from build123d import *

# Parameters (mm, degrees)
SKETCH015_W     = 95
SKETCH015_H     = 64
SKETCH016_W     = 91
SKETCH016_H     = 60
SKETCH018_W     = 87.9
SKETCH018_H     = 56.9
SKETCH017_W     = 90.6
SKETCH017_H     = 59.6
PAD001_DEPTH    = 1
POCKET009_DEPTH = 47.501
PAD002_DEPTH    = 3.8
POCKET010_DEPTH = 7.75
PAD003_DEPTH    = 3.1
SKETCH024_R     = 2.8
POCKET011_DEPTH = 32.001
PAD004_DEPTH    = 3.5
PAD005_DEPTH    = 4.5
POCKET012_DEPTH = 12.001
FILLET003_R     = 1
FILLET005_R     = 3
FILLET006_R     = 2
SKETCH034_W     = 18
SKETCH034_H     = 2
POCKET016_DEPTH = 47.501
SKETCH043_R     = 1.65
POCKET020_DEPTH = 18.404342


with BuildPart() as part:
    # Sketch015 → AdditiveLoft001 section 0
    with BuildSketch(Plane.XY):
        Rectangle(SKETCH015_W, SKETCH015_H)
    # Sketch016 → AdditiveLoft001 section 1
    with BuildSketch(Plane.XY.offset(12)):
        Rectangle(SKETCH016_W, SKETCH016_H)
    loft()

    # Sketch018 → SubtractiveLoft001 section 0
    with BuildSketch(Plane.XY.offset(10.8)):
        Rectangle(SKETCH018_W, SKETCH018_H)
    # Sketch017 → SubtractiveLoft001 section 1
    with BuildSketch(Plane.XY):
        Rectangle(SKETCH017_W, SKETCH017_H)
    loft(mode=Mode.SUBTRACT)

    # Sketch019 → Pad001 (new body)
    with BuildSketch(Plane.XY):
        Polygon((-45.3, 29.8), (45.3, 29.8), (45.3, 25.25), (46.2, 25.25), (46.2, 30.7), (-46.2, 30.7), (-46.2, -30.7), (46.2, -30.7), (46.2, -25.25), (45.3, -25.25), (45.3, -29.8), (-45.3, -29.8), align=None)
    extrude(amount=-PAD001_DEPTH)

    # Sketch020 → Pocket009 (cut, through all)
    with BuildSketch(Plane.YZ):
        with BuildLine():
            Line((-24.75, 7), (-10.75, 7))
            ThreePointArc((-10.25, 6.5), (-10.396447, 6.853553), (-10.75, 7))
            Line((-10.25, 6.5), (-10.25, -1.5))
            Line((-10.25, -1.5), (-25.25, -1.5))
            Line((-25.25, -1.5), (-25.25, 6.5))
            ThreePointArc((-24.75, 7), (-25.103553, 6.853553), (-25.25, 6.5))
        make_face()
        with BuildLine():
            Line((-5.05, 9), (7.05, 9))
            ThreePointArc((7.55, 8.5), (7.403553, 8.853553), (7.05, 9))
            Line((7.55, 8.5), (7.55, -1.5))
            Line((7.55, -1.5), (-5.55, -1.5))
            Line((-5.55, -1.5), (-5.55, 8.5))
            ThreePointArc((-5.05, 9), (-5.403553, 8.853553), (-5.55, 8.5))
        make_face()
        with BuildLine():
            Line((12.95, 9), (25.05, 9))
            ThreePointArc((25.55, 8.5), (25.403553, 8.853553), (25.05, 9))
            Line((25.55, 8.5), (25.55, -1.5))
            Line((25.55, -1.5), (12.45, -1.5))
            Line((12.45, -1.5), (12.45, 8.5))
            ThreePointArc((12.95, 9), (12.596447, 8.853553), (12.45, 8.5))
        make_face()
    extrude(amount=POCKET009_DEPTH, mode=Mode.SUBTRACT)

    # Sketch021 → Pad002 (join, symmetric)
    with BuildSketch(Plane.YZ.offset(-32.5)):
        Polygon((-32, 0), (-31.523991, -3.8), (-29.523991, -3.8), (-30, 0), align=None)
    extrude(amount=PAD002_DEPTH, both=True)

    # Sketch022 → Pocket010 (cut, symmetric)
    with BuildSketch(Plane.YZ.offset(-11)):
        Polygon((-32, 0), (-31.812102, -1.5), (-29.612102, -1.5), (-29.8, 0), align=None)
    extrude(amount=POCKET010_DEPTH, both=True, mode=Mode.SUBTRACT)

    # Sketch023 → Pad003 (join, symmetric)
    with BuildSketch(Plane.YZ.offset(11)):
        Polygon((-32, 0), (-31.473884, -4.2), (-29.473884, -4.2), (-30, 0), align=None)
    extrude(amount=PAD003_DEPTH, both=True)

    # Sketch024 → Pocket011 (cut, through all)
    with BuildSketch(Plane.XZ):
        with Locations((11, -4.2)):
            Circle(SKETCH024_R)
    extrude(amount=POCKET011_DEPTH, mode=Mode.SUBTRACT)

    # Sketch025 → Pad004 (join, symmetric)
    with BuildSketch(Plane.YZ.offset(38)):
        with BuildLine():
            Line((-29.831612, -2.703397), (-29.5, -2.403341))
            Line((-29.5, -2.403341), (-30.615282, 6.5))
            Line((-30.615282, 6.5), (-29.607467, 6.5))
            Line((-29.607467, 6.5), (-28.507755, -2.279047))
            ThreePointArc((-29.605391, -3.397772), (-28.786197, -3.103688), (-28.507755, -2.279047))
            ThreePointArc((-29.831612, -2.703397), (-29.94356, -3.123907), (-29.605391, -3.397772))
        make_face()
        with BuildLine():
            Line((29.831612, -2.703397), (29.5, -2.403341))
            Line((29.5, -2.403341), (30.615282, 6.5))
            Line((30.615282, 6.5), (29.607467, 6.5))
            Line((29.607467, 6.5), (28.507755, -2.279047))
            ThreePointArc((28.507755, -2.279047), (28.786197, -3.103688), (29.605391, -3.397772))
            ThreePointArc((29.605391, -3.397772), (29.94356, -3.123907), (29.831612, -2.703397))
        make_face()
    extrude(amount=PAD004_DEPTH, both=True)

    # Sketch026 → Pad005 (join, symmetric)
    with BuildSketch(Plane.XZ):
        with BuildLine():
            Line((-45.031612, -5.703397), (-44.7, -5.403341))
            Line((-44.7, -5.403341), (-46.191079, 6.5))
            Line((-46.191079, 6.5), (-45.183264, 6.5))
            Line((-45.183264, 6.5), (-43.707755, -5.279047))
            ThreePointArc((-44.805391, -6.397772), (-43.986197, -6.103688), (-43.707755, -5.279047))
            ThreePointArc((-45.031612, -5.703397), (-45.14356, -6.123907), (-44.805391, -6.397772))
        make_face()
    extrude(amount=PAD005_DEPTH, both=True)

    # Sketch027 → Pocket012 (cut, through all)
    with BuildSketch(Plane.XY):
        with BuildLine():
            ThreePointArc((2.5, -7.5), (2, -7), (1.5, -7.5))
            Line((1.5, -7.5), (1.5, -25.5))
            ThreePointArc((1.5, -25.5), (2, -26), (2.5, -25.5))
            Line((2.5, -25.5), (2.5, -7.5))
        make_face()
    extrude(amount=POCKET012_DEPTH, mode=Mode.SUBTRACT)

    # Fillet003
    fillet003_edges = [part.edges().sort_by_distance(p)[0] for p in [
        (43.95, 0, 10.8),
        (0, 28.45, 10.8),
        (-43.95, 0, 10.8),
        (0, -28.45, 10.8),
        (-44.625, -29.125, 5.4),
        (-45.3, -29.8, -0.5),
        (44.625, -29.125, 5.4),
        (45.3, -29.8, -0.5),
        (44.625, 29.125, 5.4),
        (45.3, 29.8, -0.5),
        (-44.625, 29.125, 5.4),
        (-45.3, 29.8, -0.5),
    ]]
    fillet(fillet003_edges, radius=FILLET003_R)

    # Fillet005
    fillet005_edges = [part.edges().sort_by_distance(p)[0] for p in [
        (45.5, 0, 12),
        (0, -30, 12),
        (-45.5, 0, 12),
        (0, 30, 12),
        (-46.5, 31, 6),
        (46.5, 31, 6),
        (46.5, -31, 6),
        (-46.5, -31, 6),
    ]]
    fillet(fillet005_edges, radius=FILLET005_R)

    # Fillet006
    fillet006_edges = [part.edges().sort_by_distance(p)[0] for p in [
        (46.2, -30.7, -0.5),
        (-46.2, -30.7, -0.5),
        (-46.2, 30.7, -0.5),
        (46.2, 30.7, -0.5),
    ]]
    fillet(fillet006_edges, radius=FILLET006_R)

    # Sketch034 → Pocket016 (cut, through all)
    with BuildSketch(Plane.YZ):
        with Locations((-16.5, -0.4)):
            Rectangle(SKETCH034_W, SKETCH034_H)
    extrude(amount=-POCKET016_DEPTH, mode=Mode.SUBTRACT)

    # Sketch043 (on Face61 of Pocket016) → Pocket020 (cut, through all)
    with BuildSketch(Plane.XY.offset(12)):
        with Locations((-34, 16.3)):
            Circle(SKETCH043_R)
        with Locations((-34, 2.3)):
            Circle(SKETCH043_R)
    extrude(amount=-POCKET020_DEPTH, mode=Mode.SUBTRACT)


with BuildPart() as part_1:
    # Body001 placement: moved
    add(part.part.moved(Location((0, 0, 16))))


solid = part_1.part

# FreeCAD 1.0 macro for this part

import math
import FreeCAD as App
import Part
import Sketcher
from FreeCAD import Vector
Q = App.Units.Quantity


def edges_at(feature, points):
    """Names of the edges that pass closest to the given points."""
    edges = feature.Shape.Edges
    near = lambda p: min(range(len(edges)), key=lambda i: edges[i].distToShape(Part.Vertex(*p))[0])
    return sorted({f"Edge{near(p) + 1}" for p in points})


def add_polygon(sketch, points):
    """Adds a closed chain of lines whose ends are joined by coincident constraints."""
    first, n = sketch.GeometryCount, len(points)
    for a, b in zip(points, points[1:] + points[:1]):
        sketch.addGeometry(Part.LineSegment(App.Vector(*a, 0), App.Vector(*b, 0)), False)
    for i in range(n):
        sketch.addConstraint(Sketcher.Constraint("Coincident", first + i, 2, first + (i + 1) % n, 1))

doc = App.newDocument("Part")
params = doc.addObject("Spreadsheet::Sheet", "Params")
for row, (alias, value) in enumerate([
    ("sketch1_width", "95 mm"),
    ("sketch1_height", "64 mm"),
    ("sketch2_width", "91 mm"),
    ("sketch2_height", "60 mm"),
    ("sketch3_width", "87.9 mm"),
    ("sketch3_height", "56.9 mm"),
    ("sketch4_width", "90.6 mm"),
    ("sketch4_height", "59.6 mm"),
    ("sketch5_width", "90.6 mm"),
    ("sketch5_width2", "0.9 mm"),
    ("sketch5_height", "61.4 mm"),
    ("sketch5_height2", "59.6 mm"),
    ("sketch5_height3", "4.55 mm"),
    ("pad1_length", "1 mm"),
    ("sketch6_radius", "0.500001 mm"),
    ("sketch6_width", "14 mm"),
    ("sketch6_width2", "15 mm"),
    ("sketch6_height", "8 mm"),
    ("sketch6_height2", "10 mm"),
    ("sketch7_width", "2 mm"),
    ("pad2_length", "7.6 mm"),
    ("sketch8_width", "2.2 mm"),
    ("pocket2_length", "15.5 mm"),
    ("sketch9_width", "2 mm"),
    ("pad3_length", "6.2 mm"),
    ("sketch10_diameter", "5.6 mm"),
    ("sketch11_radius", "0.999999 mm"),
    ("sketch11_radius2", "0.399999 mm"),
    ("pad4_length", "7 mm"),
    ("sketch12_radius", "0.999999 mm"),
    ("sketch12_radius2", "0.399999 mm"),
    ("pad5_length", "9 mm"),
    ("sketch13_radius", "0.5 mm"),
    ("sketch13_height", "18 mm"),
    ("fillet_radius", "1 mm"),
    ("fillet2_radius", "3 mm"),
    ("fillet3_radius", "2 mm"),
    ("sketch14_width", "18 mm"),
    ("sketch14_height", "2 mm"),
    ("sketch15_diameter", "3.3 mm"),
], start=1):
    params.set(f"A{row}", alias)
    params.set(f"B{row}", "=" + value)
    params.setAlias(f"B{row}", alias)

body = doc.addObject("PartDesign::Body", "Body")

sketch1 = body.newObject("Sketcher::SketchObject", "Sketch")
sketch1.AttachmentSupport = (doc.getObject("XY_Plane"), [""])
sketch1.MapMode = "FlatFace"
add_polygon(sketch1, [(-48, 32), (-48, -32), (48, -32), (48, 32)])
sketch1.addConstraint([
    Sketcher.Constraint("Vertical", 0),
    Sketcher.Constraint("Horizontal", 1),
    Sketcher.Constraint("Vertical", 2),
    Sketcher.Constraint("Horizontal", 3),
    Sketcher.Constraint("Symmetric", 0, 2, 2, 2, -1, 1),
    Sketcher.Constraint("DistanceX", 1, 1, 1, 2, 95.0),
    Sketcher.Constraint("DistanceY", 0, 2, 0, 1, 64.0),
])
sketch1.setExpression("Constraints[9]", "Params.sketch1_width")
sketch1.setExpression("Constraints[10]", "Params.sketch1_height")

sketch2 = body.newObject("Sketcher::SketchObject", "Sketch001")
sketch2.AttachmentSupport = (doc.getObject("XY_Plane"), [""])
sketch2.MapMode = "FlatFace"
sketch2.AttachmentOffset = App.Placement(Vector(0, 0, 12), App.Rotation())
add_polygon(sketch2, [(-46, 30), (-46, -30), (46, -30), (46, 30)])
sketch2.addConstraint([
    Sketcher.Constraint("Vertical", 0),
    Sketcher.Constraint("Horizontal", 1),
    Sketcher.Constraint("Vertical", 2),
    Sketcher.Constraint("Horizontal", 3),
    Sketcher.Constraint("Symmetric", 0, 2, 2, 2, -1, 1),
    Sketcher.Constraint("DistanceX", 1, 1, 1, 2, 91.0),
    Sketcher.Constraint("DistanceY", 0, 2, 0, 1, 60.0),
])
sketch2.setExpression("Constraints[9]", "Params.sketch2_width")
sketch2.setExpression("Constraints[10]", "Params.sketch2_height")

additiveloft = body.newObject("PartDesign::AdditiveLoft", "AdditiveLoft")
additiveloft.Profile = sketch1
additiveloft.Sections = [sketch2]

sketch3 = body.newObject("Sketcher::SketchObject", "Sketch002")
sketch3.AttachmentSupport = (doc.getObject("XY_Plane"), [""])
sketch3.MapMode = "FlatFace"
sketch3.AttachmentOffset = App.Placement(Vector(0, 0, 10.8), App.Rotation())
add_polygon(sketch3, [(-44, 28), (-44, -28), (44, -28), (44, 28)])
sketch3.addConstraint([
    Sketcher.Constraint("Vertical", 0),
    Sketcher.Constraint("Horizontal", 1),
    Sketcher.Constraint("Vertical", 2),
    Sketcher.Constraint("Horizontal", 3),
    Sketcher.Constraint("Symmetric", 0, 2, 2, 2, -1, 1),
    Sketcher.Constraint("DistanceX", 1, 1, 1, 2, 87.9),
    Sketcher.Constraint("DistanceY", 0, 2, 0, 1, 56.9),
])
sketch3.setExpression("Constraints[9]", "Params.sketch3_width")
sketch3.setExpression("Constraints[10]", "Params.sketch3_height")

sketch4 = body.newObject("Sketcher::SketchObject", "Sketch003")
sketch4.AttachmentSupport = (doc.getObject("XY_Plane"), [""])
sketch4.MapMode = "FlatFace"
add_polygon(sketch4, [(-45, 30), (-45, -30), (45, -30), (45, 30)])
sketch4.addConstraint([
    Sketcher.Constraint("Vertical", 0),
    Sketcher.Constraint("Horizontal", 1),
    Sketcher.Constraint("Vertical", 2),
    Sketcher.Constraint("Horizontal", 3),
    Sketcher.Constraint("Symmetric", 0, 2, 2, 2, -1, 1),
    Sketcher.Constraint("DistanceX", 1, 1, 1, 2, 90.6),
    Sketcher.Constraint("DistanceY", 0, 2, 0, 1, 59.6),
])
sketch4.setExpression("Constraints[9]", "Params.sketch4_width")
sketch4.setExpression("Constraints[10]", "Params.sketch4_height")

subtractiveloft = body.newObject("PartDesign::SubtractiveLoft", "SubtractiveLoft")
subtractiveloft.Profile = sketch3
subtractiveloft.Sections = [sketch4]

sketch5 = body.newObject("Sketcher::SketchObject", "Sketch004")
sketch5.AttachmentSupport = (doc.getObject("XY_Plane"), [""])
sketch5.MapMode = "FlatFace"
add_polygon(sketch5, [(-45.3, 29.8), (45.3, 29.8), (45.3, 25.2), (46.2, 25.2), (46.2, 30.7), (-46.2, 30.7), (-46.2, -30.7), (46.2, -30.7), (46.2, -25.2), (45.3, -25.2), (45.3, -29.8), (-45.3, -29.8)])
sketch5.addConstraint([
    Sketcher.Constraint("Horizontal", 0),
    Sketcher.Constraint("Vertical", 1),
    Sketcher.Constraint("Horizontal", 2),
    Sketcher.Constraint("Vertical", 3),
    Sketcher.Constraint("Horizontal", 4),
    Sketcher.Constraint("Vertical", 5),
    Sketcher.Constraint("Horizontal", 6),
    Sketcher.Constraint("Vertical", 7),
    Sketcher.Constraint("Horizontal", 8),
    Sketcher.Constraint("Vertical", 9),
    Sketcher.Constraint("Horizontal", 10),
    Sketcher.Constraint("Vertical", 11),
    Sketcher.Constraint("Symmetric", 3, 2, 5, 2, -1, 1),
    Sketcher.Constraint("Symmetric", 0, 2, 10, 2, -1, 1),
    Sketcher.Constraint("Symmetric", 2, 2, 7, 2, -1),
    Sketcher.Constraint("Vertical", 1, 2, 8, 2),
    Sketcher.Constraint("DistanceX", 0, 1, 0, 2, 90.6),
    Sketcher.Constraint("DistanceX", 2, 1, 2, 2, 0.9),
    Sketcher.Constraint("DistanceY", 5, 2, 5, 1, 61.4),
    Sketcher.Constraint("DistanceY", 11, 1, 11, 2, 59.6),
    Sketcher.Constraint("DistanceY", 1, 2, 1, 1, 4.55),
])
sketch5.setExpression("Constraints[28]", "Params.sketch5_width")
sketch5.setExpression("Constraints[29]", "Params.sketch5_width2")
sketch5.setExpression("Constraints[30]", "Params.sketch5_height")
sketch5.setExpression("Constraints[31]", "Params.sketch5_height2")
sketch5.setExpression("Constraints[32]", "Params.sketch5_height3")
pad1 = body.newObject("PartDesign::Pad", "Pad")
pad1.Profile = sketch5
pad1.setExpression("Length", "Params.pad1_length")
pad1.Reversed = True

sketch6 = body.newObject("Sketcher::SketchObject", "Sketch005")
sketch6.AttachmentSupport = (doc.getObject("YZ_Plane"), [""])
sketch6.MapMode = "FlatFace"
sketch6.addGeometry([
    Part.LineSegment(Vector(-10.8, 7, 0), Vector(-24.8, 7, 0)),
    Part.ArcOfCircle(Part.Circle(Vector(-24.7, 6.5, 0), Vector(0, 0, 1), 0.5), math.radians(90), math.radians(180)),
    Part.LineSegment(Vector(-25.2, 6.5, 0), Vector(-25.2, -1.5, 0)),
    Part.LineSegment(Vector(-25.2, -1.5, 0), Vector(-10.2, -1.5, 0)),
    Part.LineSegment(Vector(-10.2, -1.5, 0), Vector(-10.2, 6.5, 0)),
    Part.ArcOfCircle(Part.Circle(Vector(-10.8, 6.5, 0), Vector(0, 0, 1), 0.5), math.radians(0), math.radians(90)),
    Part.LineSegment(Vector(7, 9, 0), Vector(-5, 9, 0)),
    Part.ArcOfCircle(Part.Circle(Vector(-5, 8.5, 0), Vector(0, 0, 1), 0.5), math.radians(90), math.radians(180)),
    Part.LineSegment(Vector(-5.5, 8.5, 0), Vector(-5.5, -1.5, 0)),
    Part.LineSegment(Vector(-5.5, -1.5, 0), Vector(7.5, -1.5, 0)),
    Part.LineSegment(Vector(7.5, -1.5, 0), Vector(7.5, 8.5, 0)),
    Part.ArcOfCircle(Part.Circle(Vector(7, 8.5, 0), Vector(0, 0, 1), 0.5), math.radians(0), math.radians(90)),
    Part.LineSegment(Vector(25.1, 9, 0), Vector(12.9, 9, 0)),
    Part.ArcOfCircle(Part.Circle(Vector(13, 8.5, 0), Vector(0, 0, 1), 0.5), math.radians(90), math.radians(180)),
    Part.LineSegment(Vector(12.4, 8.5, 0), Vector(12.4, -1.5, 0)),
    Part.LineSegment(Vector(12.4, -1.5, 0), Vector(25.6, -1.5, 0)),
    Part.LineSegment(Vector(25.6, -1.5, 0), Vector(25.6, 8.5, 0)),
    Part.ArcOfCircle(Part.Circle(Vector(25, 8.5, 0), Vector(0, 0, 1), 0.5), math.radians(0), math.radians(90)),
], False)
sketch6.addConstraint([
    Sketcher.Constraint("Coincident", 0, 2, 1, 1),
    Sketcher.Constraint("Coincident", 1, 2, 2, 1),
    Sketcher.Constraint("Coincident", 2, 2, 3, 1),
    Sketcher.Constraint("Coincident", 3, 2, 4, 1),
    Sketcher.Constraint("Coincident", 4, 2, 5, 1),
    Sketcher.Constraint("Coincident", 5, 2, 0, 1),
    Sketcher.Constraint("Coincident", 6, 2, 7, 1),
    Sketcher.Constraint("Coincident", 7, 2, 8, 1),
    Sketcher.Constraint("Coincident", 8, 2, 9, 1),
    Sketcher.Constraint("Coincident", 9, 2, 10, 1),
    Sketcher.Constraint("Coincident", 10, 2, 11, 1),
    Sketcher.Constraint("Coincident", 11, 2, 6, 1),
    Sketcher.Constraint("Coincident", 12, 2, 13, 1),
    Sketcher.Constraint("Coincident", 13, 2, 14, 1),
    Sketcher.Constraint("Coincident", 14, 2, 15, 1),
    Sketcher.Constraint("Coincident", 15, 2, 16, 1),
    Sketcher.Constraint("Coincident", 16, 2, 17, 1),
    Sketcher.Constraint("Coincident", 17, 2, 12, 1),
    Sketcher.Constraint("Horizontal", 0),
    Sketcher.Constraint("Vertical", 2),
    Sketcher.Constraint("Horizontal", 3),
    Sketcher.Constraint("Vertical", 4),
    Sketcher.Constraint("Horizontal", 6),
    Sketcher.Constraint("Vertical", 8),
    Sketcher.Constraint("Horizontal", 9),
    Sketcher.Constraint("Vertical", 10),
    Sketcher.Constraint("Horizontal", 12),
    Sketcher.Constraint("Vertical", 14),
    Sketcher.Constraint("Horizontal", 15),
    Sketcher.Constraint("Vertical", 16),
    Sketcher.Constraint("Equal", 1, 5),
    Sketcher.Constraint("Equal", 5, 7),
    Sketcher.Constraint("Equal", 7, 11),
    Sketcher.Constraint("Equal", 11, 13),
    Sketcher.Constraint("Equal", 13, 17),
    Sketcher.Constraint("Horizontal", 11, 3, 13, 3),
    Sketcher.Constraint("Horizontal", 5, 3, 1, 2),
    Sketcher.Constraint("Horizontal", 1, 2, 4, 2),
    Sketcher.Constraint("Horizontal", 17, 3, 7, 2),
    Sketcher.Constraint("Horizontal", 3, 2, 8, 2),
    Sketcher.Constraint("Horizontal", 7, 2, 10, 2),
    Sketcher.Constraint("Horizontal", 10, 2, 13, 2),
    Sketcher.Constraint("Horizontal", 9, 2, 14, 2),
    Sketcher.Constraint("Horizontal", 13, 2, 16, 2),
    Sketcher.Constraint("Vertical", 1, 3, 0, 2),
    Sketcher.Constraint("Vertical", 7, 3, 6, 2),
    Sketcher.Constraint("Vertical", 13, 3, 12, 2),
    Sketcher.Constraint("Equal", 6, 12),
    Sketcher.Constraint("Equal", 9, 15),
    Sketcher.Constraint("Radius", 1, 0.500001),
    Sketcher.Constraint("DistanceX", 0, 2, 0, 1, 14.0),
    Sketcher.Constraint("DistanceX", 3, 1, 3, 2, 15.0),
    Sketcher.Constraint("DistanceY", 2, 2, 2, 1, 8.0),
    Sketcher.Constraint("DistanceY", 8, 2, 8, 1, 10.0),
    Sketcher.Constraint("DistanceX", 6, 2, 6, 1, 12.1),
    Sketcher.Constraint("DistanceX", 9, 1, 9, 2, 13.1),
    Sketcher.Constraint("DistanceY", -1, 1, 0, 2, 7.0),
    Sketcher.Constraint("DistanceX", 7, 3, 13, 3, 18.0),
    Sketcher.Constraint("DistanceX", 1, 3, 7, 3, 19.7),
    Sketcher.Constraint("DistanceX", 1, 3, -1, 1, 24.749999),
])
sketch6.setExpression("Constraints[49]", "Params.sketch6_radius")
sketch6.setExpression("Constraints[50]", "Params.sketch6_width")
sketch6.setExpression("Constraints[51]", "Params.sketch6_width2")
sketch6.setExpression("Constraints[52]", "Params.sketch6_height")
sketch6.setExpression("Constraints[53]", "Params.sketch6_height2")
pocket1 = body.newObject("PartDesign::Pocket", "Pocket")
pocket1.Profile = sketch6
pocket1.Type = "ThroughAll"
pocket1.Reversed = True

sketch7 = body.newObject("Sketcher::SketchObject", "Sketch006")
sketch7.AttachmentSupport = (doc.getObject("YZ_Plane"), [""])
sketch7.MapMode = "FlatFace"
sketch7.AttachmentOffset = App.Placement(Vector(0, 0, -32.5), App.Rotation())
add_polygon(sketch7, [(-32, 0), (-31.5, -3.8), (-29.5, -3.8), (-30, 0)])
sketch7.addConstraint([
    Sketcher.Constraint("Horizontal", 1),
    Sketcher.Constraint("Horizontal", 3),
    Sketcher.Constraint("PointOnObject", 2, 2, -1),
    Sketcher.Constraint("Parallel", 0, 2),
    Sketcher.Constraint("DistanceX", 1, 1, 1, 2, 2.0),
    Sketcher.Constraint("DistanceX", 2, 2, -1, 1, 30.0),
    Sketcher.Constraint("DistanceY", 0, 2, -1, 1, 3.8),
    Sketcher.Constraint("Angle", 0, Q("-82.860005 deg")),
])
sketch7.setExpression("Constraints[8]", "Params.sketch7_width")
pad2 = body.newObject("PartDesign::Pad", "Pad001")
pad2.Profile = sketch7
pad2.setExpression("Length", "Params.pad2_length")
pad2.Midplane = True

sketch8 = body.newObject("Sketcher::SketchObject", "Sketch007")
sketch8.AttachmentSupport = (doc.getObject("YZ_Plane"), [""])
sketch8.MapMode = "FlatFace"
sketch8.AttachmentOffset = App.Placement(Vector(0, 0, -11), App.Rotation())
add_polygon(sketch8, [(-32, 0), (-31.8, -1.5), (-29.6, -1.5), (-29.8, 0)])
sketch8.addConstraint([
    Sketcher.Constraint("Horizontal", 1),
    Sketcher.Constraint("Horizontal", 3),
    Sketcher.Constraint("PointOnObject", 2, 2, -1),
    Sketcher.Constraint("Parallel", 0, 2),
    Sketcher.Constraint("DistanceX", 1, 1, 1, 2, 2.2),
    Sketcher.Constraint("DistanceX", 3, 2, -1, 1, 32.0),
    Sketcher.Constraint("DistanceY", 0, 2, -1, 1, 1.5),
    Sketcher.Constraint("Angle", 0, Q("-82.860016 deg")),
])
sketch8.setExpression("Constraints[8]", "Params.sketch8_width")
pocket2 = body.newObject("PartDesign::Pocket", "Pocket001")
pocket2.Profile = sketch8
pocket2.setExpression("Length", "Params.pocket2_length")
pocket2.Midplane = True

sketch9 = body.newObject("Sketcher::SketchObject", "Sketch008")
sketch9.AttachmentSupport = (doc.getObject("YZ_Plane"), [""])
sketch9.MapMode = "FlatFace"
sketch9.AttachmentOffset = App.Placement(Vector(0, 0, 11), App.Rotation())
add_polygon(sketch9, [(-32, 0), (-31.5, -4.2), (-29.5, -4.2), (-30, 0)])
sketch9.addConstraint([
    Sketcher.Constraint("Horizontal", 1),
    Sketcher.Constraint("Horizontal", 3),
    Sketcher.Constraint("PointOnObject", 2, 2, -1),
    Sketcher.Constraint("Parallel", 0, 2),
    Sketcher.Constraint("DistanceX", 1, 1, 1, 2, 2.0),
    Sketcher.Constraint("DistanceX", 2, 2, -1, 1, 30.0),
    Sketcher.Constraint("DistanceY", 0, 2, -1, 1, 4.2),
    Sketcher.Constraint("Angle", 0, Q("-82.859994 deg")),
])
sketch9.setExpression("Constraints[8]", "Params.sketch9_width")
pad3 = body.newObject("PartDesign::Pad", "Pad002")
pad3.Profile = sketch9
pad3.setExpression("Length", "Params.pad3_length")
pad3.Midplane = True

sketch10 = body.newObject("Sketcher::SketchObject", "Sketch009")
sketch10.AttachmentSupport = (doc.getObject("XZ_Plane"), [""])
sketch10.MapMode = "FlatFace"
sketch10.addGeometry(Part.Circle(Vector(11, -4.2, 0), Vector(0, 0, 1), 2.8), False)
sketch10.addConstraint([
    Sketcher.Constraint("Diameter", 0, 5.6),
    Sketcher.Constraint("DistanceX", -1, 1, 0, 3, 11.0),
    Sketcher.Constraint("DistanceY", 0, 3, -1, 1, 4.2),
])
sketch10.setExpression("Constraints[0]", "Params.sketch10_diameter")
pocket3 = body.newObject("PartDesign::Pocket", "Pocket002")
pocket3.Profile = sketch10
pocket3.Type = "ThroughAll"
pocket3.Reversed = True

sketch11 = body.newObject("Sketcher::SketchObject", "Sketch010")
sketch11.AttachmentSupport = (doc.getObject("YZ_Plane"), [""])
sketch11.MapMode = "FlatFace"
sketch11.AttachmentOffset = App.Placement(Vector(0, 0, 38), App.Rotation())
sketch11.addGeometry([
    Part.LineSegment(Vector(-29.5, -2.4, 0), Vector(-29.83, -2.7, 0)),
    Part.ArcOfCircle(Part.Circle(Vector(-29.56, -3, 0), Vector(0, 0, 1), 0.4), math.radians(132), math.radians(264)),
    Part.ArcOfCircle(Part.Circle(Vector(-29.5, -2.4, 0), Vector(0, 0, 1), 1), math.radians(-96), math.radians(7)),
    Part.LineSegment(Vector(-28.51, -2.28, 0), Vector(-29.61, 6.5, 0)),
    Part.LineSegment(Vector(-29.61, 6.5, 0), Vector(-30.62, 6.5, 0)),
    Part.LineSegment(Vector(-30.62, 6.5, 0), Vector(-29.5, -2.4, 0)),
    Part.LineSegment(Vector(29.83, -2.7, 0), Vector(29.5, -2.4, 0)),
    Part.LineSegment(Vector(29.5, -2.4, 0), Vector(30.62, 6.5, 0)),
    Part.LineSegment(Vector(30.62, 6.5, 0), Vector(29.61, 6.5, 0)),
    Part.LineSegment(Vector(29.61, 6.5, 0), Vector(28.51, -2.28, 0)),
    Part.ArcOfCircle(Part.Circle(Vector(29.5, -2.4, 0), Vector(0, 0, 1), 1), math.radians(173), math.radians(276)),
    Part.ArcOfCircle(Part.Circle(Vector(29.56, -3, 0), Vector(0, 0, 1), 0.4), math.radians(-84), math.radians(48)),
], False)
sketch11.addConstraint([
    Sketcher.Constraint("Coincident", 0, 2, 1, 1),
    Sketcher.Constraint("Coincident", 1, 2, 2, 1),
    Sketcher.Constraint("Tangent", 2, 2, 3, 1),
    Sketcher.Constraint("Coincident", 3, 2, 4, 1),
    Sketcher.Constraint("Coincident", 4, 2, 5, 1),
    Sketcher.Constraint("Coincident", 5, 2, 0, 1),
    Sketcher.Constraint("Coincident", 6, 2, 7, 1),
    Sketcher.Constraint("Coincident", 7, 2, 8, 1),
    Sketcher.Constraint("Coincident", 8, 2, 9, 1),
    Sketcher.Constraint("Tangent", 9, 2, 10, 1),
    Sketcher.Constraint("Coincident", 10, 2, 11, 1),
    Sketcher.Constraint("Coincident", 11, 2, 6, 1),
    Sketcher.Constraint("Horizontal", 4),
    Sketcher.Constraint("Horizontal", 8),
    Sketcher.Constraint("Coincident", 5, 2, 2, 3),
    Sketcher.Constraint("Coincident", 6, 2, 10, 3),
    Sketcher.Constraint("Equal", 2, 10),
    Sketcher.Constraint("Equal", 1, 11),
    Sketcher.Constraint("Symmetric", 2, 3, 10, 3, -2),
    Sketcher.Constraint("Symmetric", 4, 2, 7, 2, -2),
    Sketcher.Constraint("Symmetric", 0, 2, 11, 2, -2),
    Sketcher.Constraint("Parallel", 3, 5),
    Sketcher.Constraint("Parallel", 7, 9),
    Sketcher.Constraint("Horizontal", 1, 2, 10, 2),
    Sketcher.Constraint("Radius", 2, 0.999999),
    Sketcher.Constraint("Radius", 1, 0.399999),
    Sketcher.Constraint("DistanceY", 1, 3, -1, 1, 3.0),
    Sketcher.Constraint("DistanceX", 2, 3, 10, 3, 58.999999),
    Sketcher.Constraint("DistanceY", -1, 1, 3, 2, 6.5),
    Sketcher.Constraint("Angle", 3, Q("97.139996 deg")),
    Sketcher.Constraint("DistanceX", 0, 2, -1, 1, 29.831612),
    Sketcher.Constraint("DistanceX", 1, 2, -1, 1, 29.605391),
    Sketcher.Constraint("DistanceY", 1, 2, -1, 1, 3.397772),
])
sketch11.setExpression("Constraints[24]", "Params.sketch11_radius")
sketch11.setExpression("Constraints[25]", "Params.sketch11_radius2")
pad4 = body.newObject("PartDesign::Pad", "Pad003")
pad4.Profile = sketch11
pad4.setExpression("Length", "Params.pad4_length")
pad4.Midplane = True

sketch12 = body.newObject("Sketcher::SketchObject", "Sketch011")
sketch12.AttachmentSupport = (doc.getObject("XZ_Plane"), [""])
sketch12.MapMode = "FlatFace"
sketch12.addGeometry([
    Part.LineSegment(Vector(-44.7, -5.4, 0), Vector(-45.03, -5.7, 0)),
    Part.ArcOfCircle(Part.Circle(Vector(-44.76, -6, 0), Vector(0, 0, 1), 0.4), math.radians(132), math.radians(264)),
    Part.ArcOfCircle(Part.Circle(Vector(-44.7, -5.4, 0), Vector(0, 0, 1), 1), math.radians(-96), math.radians(7)),
    Part.LineSegment(Vector(-43.71, -5.28, 0), Vector(-45.18, 6.5, 0)),
    Part.LineSegment(Vector(-45.18, 6.5, 0), Vector(-46.19, 6.5, 0)),
    Part.LineSegment(Vector(-46.19, 6.5, 0), Vector(-44.7, -5.4, 0)),
], False)
sketch12.addConstraint([
    Sketcher.Constraint("Coincident", 0, 2, 1, 1),
    Sketcher.Constraint("Coincident", 1, 2, 2, 1),
    Sketcher.Constraint("Tangent", 2, 2, 3, 1),
    Sketcher.Constraint("Coincident", 3, 2, 4, 1),
    Sketcher.Constraint("Coincident", 4, 2, 5, 1),
    Sketcher.Constraint("Coincident", 5, 2, 0, 1),
    Sketcher.Constraint("Horizontal", 4),
    Sketcher.Constraint("Coincident", 5, 2, 2, 3),
    Sketcher.Constraint("Parallel", 3, 5),
    Sketcher.Constraint("Radius", 2, 0.999999),
    Sketcher.Constraint("Radius", 1, 0.399999),
    Sketcher.Constraint("DistanceY", 1, 3, -1, 1, 6.0),
    Sketcher.Constraint("DistanceX", 2, 3, -1, 1, 44.699999),
    Sketcher.Constraint("DistanceY", -1, 1, 3, 2, 6.5),
    Sketcher.Constraint("Angle", 3, Q("97.139998 deg")),
    Sketcher.Constraint("DistanceX", 1, 2, -1, 1, 44.805391),
    Sketcher.Constraint("DistanceY", 1, 2, -1, 1, 6.397772),
    Sketcher.Constraint("DistanceX", 0, 2, 1, 2, 0.226221),
])
sketch12.setExpression("Constraints[9]", "Params.sketch12_radius")
sketch12.setExpression("Constraints[10]", "Params.sketch12_radius2")
pad5 = body.newObject("PartDesign::Pad", "Pad004")
pad5.Profile = sketch12
pad5.setExpression("Length", "Params.pad5_length")
pad5.Midplane = True

sketch13 = body.newObject("Sketcher::SketchObject", "Sketch012")
sketch13.AttachmentSupport = (doc.getObject("XY_Plane"), [""])
sketch13.MapMode = "FlatFace"
sketch13.addGeometry([
    Part.ArcOfCircle(Part.Circle(Vector(2, -7.5, 0), Vector(0, 0, 1), 0.5), math.radians(0), math.radians(180)),
    Part.LineSegment(Vector(1.5, -7.5, 0), Vector(1.5, -25.5, 0)),
    Part.ArcOfCircle(Part.Circle(Vector(2, -25.5, 0), Vector(0, 0, 1), 0.5), math.radians(180), math.radians(360)),
    Part.LineSegment(Vector(2.5, -25.5, 0), Vector(2.5, -7.5, 0)),
], False)
sketch13.addConstraint([
    Sketcher.Constraint("Tangent", 0, 2, 1, 1),
    Sketcher.Constraint("Tangent", 1, 2, 2, 1),
    Sketcher.Constraint("Tangent", 2, 2, 3, 1),
    Sketcher.Constraint("Tangent", 3, 2, 0, 1),
    Sketcher.Constraint("Vertical", 1),
    Sketcher.Constraint("Vertical", 3),
    Sketcher.Constraint("Radius", 0, 0.5),
    Sketcher.Constraint("DistanceY", 1, 2, 1, 1, 18.0),
    Sketcher.Constraint("DistanceX", -1, 1, 0, 3, 2.0),
    Sketcher.Constraint("DistanceY", 0, 3, -1, 1, 7.5),
])
sketch13.setExpression("Constraints[6]", "Params.sketch13_radius")
sketch13.setExpression("Constraints[7]", "Params.sketch13_height")
pocket4 = body.newObject("PartDesign::Pocket", "Pocket003")
pocket4.Profile = sketch13
pocket4.Type = "ThroughAll"
pocket4.Reversed = True
doc.recompute()

fillet = body.newObject("PartDesign::Fillet", "Fillet")
fillet.Base = (pocket4, edges_at(pocket4, [
    (43.95, 0, 10.8),
    (0, 28.45, 10.8),
    (-43.95, 0, 10.8),
    (0, -28.45, 10.8),
    (-44.625, -29.125, 5.4),
    (-45.3, -29.8, -0.5),
    (44.625, -29.125, 5.4),
    (45.3, -29.8, -0.5),
    (44.625, 29.125, 5.4),
    (45.3, 29.8, -0.5),
    (-44.625, 29.125, 5.4),
    (-45.3, 29.8, -0.5),
]))
fillet.setExpression("Radius", "Params.fillet_radius")
doc.recompute()

fillet2 = body.newObject("PartDesign::Fillet", "Fillet001")
fillet2.Base = (fillet, edges_at(fillet, [
    (45.5, 0, 12),
    (0, -30, 12),
    (-45.5, 0, 12),
    (0, 30, 12),
    (-46.5, 31, 6),
    (46.5, 31, 6),
    (46.5, -31, 6),
    (-46.5, -31, 6),
]))
fillet2.setExpression("Radius", "Params.fillet2_radius")
doc.recompute()

fillet3 = body.newObject("PartDesign::Fillet", "Fillet002")
fillet3.Base = (fillet2, edges_at(fillet2, [
    (46.2, -30.7, -0.5),
    (-46.2, -30.7, -0.5),
    (-46.2, 30.7, -0.5),
    (46.2, 30.7, -0.5),
]))
fillet3.setExpression("Radius", "Params.fillet3_radius")

sketch14 = body.newObject("Sketcher::SketchObject", "Sketch013")
sketch14.AttachmentSupport = (doc.getObject("YZ_Plane"), [""])
sketch14.MapMode = "FlatFace"
add_polygon(sketch14, [(-25.5, 0.6), (-25.5, -1.4), (-7.5, -1.4), (-7.5, 0.6)])
sketch14.addConstraint([
    Sketcher.Constraint("Vertical", 0),
    Sketcher.Constraint("Horizontal", 1),
    Sketcher.Constraint("Vertical", 2),
    Sketcher.Constraint("Horizontal", 3),
    Sketcher.Constraint("DistanceX", 1, 1, 1, 2, 18.0),
    Sketcher.Constraint("DistanceY", 0, 2, 0, 1, 2.0),
    Sketcher.Constraint("DistanceX", 0, 2, -1, 1, 25.5),
    Sketcher.Constraint("DistanceY", 0, 2, -1, 1, 1.4),
])
sketch14.setExpression("Constraints[8]", "Params.sketch14_width")
sketch14.setExpression("Constraints[9]", "Params.sketch14_height")
pocket5 = body.newObject("PartDesign::Pocket", "Pocket004")
pocket5.Profile = sketch14
pocket5.Type = "ThroughAll"

sketch15 = body.newObject("Sketcher::SketchObject", "Sketch014")
sketch15.AttachmentSupport = (doc.getObject("XY_Plane"), [""])
sketch15.MapMode = "FlatFace"
sketch15.AttachmentOffset = App.Placement(Vector(0, 0, 12), App.Rotation())
sketch15.addGeometry([
    Part.Circle(Vector(-34, 16.3, 0), Vector(0, 0, 1), 1.6),
    Part.Circle(Vector(-34, 2.3, 0), Vector(0, 0, 1), 1.6),
], False)
sketch15.addConstraint([
    Sketcher.Constraint("Equal", 0, 1),
    Sketcher.Constraint("Vertical", 0, 3, 1, 3),
    Sketcher.Constraint("Diameter", 0, 3.3),
    Sketcher.Constraint("DistanceX", 0, 3, -1, 1, 34.0),
    Sketcher.Constraint("DistanceY", 1, 3, 0, 3, 14.0),
    Sketcher.Constraint("DistanceY", -1, 1, 0, 3, 16.3),
])
sketch15.setExpression("Constraints[2]", "Params.sketch15_diameter")
pocket6 = body.newObject("PartDesign::Pocket", "Pocket005")
pocket6.Profile = sketch15
pocket6.Type = "ThroughAll"
body2 = doc.addObject("PartDesign::Body", "Body001")
doc.recompute()

body.Placement = App.Placement(Vector(0, 0, 16), App.Rotation(Vector(0, 0, 1), 0))
boolean = body2.newObject("PartDesign::Boolean", "Boolean")
boolean.Type = "Fuse"
boolean.addObjects([body])

doc.recompute()
